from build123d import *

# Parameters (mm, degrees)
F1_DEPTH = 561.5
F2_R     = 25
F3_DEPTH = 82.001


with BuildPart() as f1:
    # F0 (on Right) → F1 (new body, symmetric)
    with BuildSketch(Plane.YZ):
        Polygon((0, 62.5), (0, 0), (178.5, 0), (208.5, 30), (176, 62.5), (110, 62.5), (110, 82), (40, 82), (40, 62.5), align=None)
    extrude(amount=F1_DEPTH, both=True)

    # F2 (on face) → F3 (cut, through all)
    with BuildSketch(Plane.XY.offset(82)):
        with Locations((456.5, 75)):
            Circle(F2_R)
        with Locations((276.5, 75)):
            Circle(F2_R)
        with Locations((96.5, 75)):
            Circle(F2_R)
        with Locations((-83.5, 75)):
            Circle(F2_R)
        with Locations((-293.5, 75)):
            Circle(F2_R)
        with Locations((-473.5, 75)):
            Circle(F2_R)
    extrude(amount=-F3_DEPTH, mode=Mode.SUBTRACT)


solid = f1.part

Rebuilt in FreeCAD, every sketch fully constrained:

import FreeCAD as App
import Part
import Sketcher
Q = App.Units.Quantity

doc = App.newDocument("Part")
params = doc.addObject("Spreadsheet::Sheet", "Params")
for row, (alias, value) in enumerate([
    ("sketch1_width", "66 mm"),
    ("sketch1_width2", "70 mm"),
    ("sketch1_width3", "40 mm"),
    ("sketch1_width4", "178.5 mm"),
    ("sketch1_height", "62.5 mm"),
    ("pad1_length", "1123 mm"),
    ("sketch2_diameter", "50 mm"),
], start=1):
    params.set(f"A{row}", alias)
    params.set(f"B{row}", "=" + value)
    params.setAlias(f"B{row}", alias)

body = doc.addObject("PartDesign::Body", "Body")

# Sketch on YZ plane
sketch1 = doc.addObject("Sketcher::SketchObject", "Sketch")
body.addObject(sketch1)
sketch1.AttachmentSupport = (doc.YZ_Plane, [""])
sketch1.MapMode = "FlatFace"
sketch1.addGeometry([
    Part.LineSegment(App.Vector(0, 62, 0), App.Vector(0, 0, 0)),  # 0
    Part.LineSegment(App.Vector(0, 0, 0), App.Vector(178, 0, 0)),  # 1
    Part.LineSegment(App.Vector(178, 0, 0), App.Vector(208, 30, 0)),  # 2
    Part.LineSegment(App.Vector(208, 30, 0), App.Vector(176, 62, 0)),  # 3
    Part.LineSegment(App.Vector(176, 62, 0), App.Vector(110, 62, 0)),  # 4
    Part.LineSegment(App.Vector(110, 62, 0), App.Vector(110, 82, 0)),  # 5
    Part.LineSegment(App.Vector(110, 82, 0), App.Vector(40, 82, 0)),  # 6
    Part.LineSegment(App.Vector(40, 82, 0), App.Vector(40, 62, 0)),  # 7
    Part.LineSegment(App.Vector(40, 62, 0), App.Vector(0, 62, 0)),  # 8
], False)
sketch1.addConstraint([
    Sketcher.Constraint("Coincident", 0, 2, 1, 1),
    Sketcher.Constraint("Coincident", 1, 2, 2, 1),
    Sketcher.Constraint("Coincident", 2, 2, 3, 1),
    Sketcher.Constraint("Coincident", 3, 2, 4, 1),
    Sketcher.Constraint("Coincident", 4, 2, 5, 1),
    Sketcher.Constraint("Coincident", 5, 2, 6, 1),
    Sketcher.Constraint("Coincident", 6, 2, 7, 1),
    Sketcher.Constraint("Coincident", 7, 2, 8, 1),
    Sketcher.Constraint("Coincident", 8, 2, 0, 1),
    Sketcher.Constraint("Vertical", 0),
    Sketcher.Constraint("Horizontal", 1),
    Sketcher.Constraint("Horizontal", 4),
    Sketcher.Constraint("Vertical", 5),
    Sketcher.Constraint("Horizontal", 6),
    Sketcher.Constraint("Vertical", 7),
    Sketcher.Constraint("Horizontal", 8),
    Sketcher.Constraint("Coincident", 0, 2, -1, 1),
    Sketcher.Constraint("Perpendicular", 2, 3),
    Sketcher.Constraint("Horizontal", 4, 2, 7, 2),
    Sketcher.Constraint("DistanceX", 4, 2, 4, 1, 66.0),
    Sketcher.Constraint("DistanceX", 6, 2, 6, 1, 70.0),
    Sketcher.Constraint("DistanceX", 8, 2, 8, 1, 40.0),
    Sketcher.Constraint("Angle", 2, Q("45 deg")),
    Sketcher.Constraint("DistanceX", 1, 1, 1, 2, 178.5),
    Sketcher.Constraint("DistanceY", 0, 2, 0, 1, 62.5),
    Sketcher.Constraint("DistanceY", 5, 1, 5, 2, 19.5),
])
sketch1.setExpression("Constraints[19]", "Params.sketch1_width")
sketch1.setExpression("Constraints[20]", "Params.sketch1_width2")
sketch1.setExpression("Constraints[21]", "Params.sketch1_width3")
sketch1.setExpression("Constraints[23]", "Params.sketch1_width4")
sketch1.setExpression("Constraints[24]", "Params.sketch1_height")
pad1 = doc.addObject("PartDesign::Pad", "Pad")
body.addObject(pad1)
pad1.Profile = sketch1
pad1.setExpression("Length", "Params.pad1_length")
pad1.Midplane = True

# Sketch on XY plane
sketch2 = doc.addObject("Sketcher::SketchObject", "Sketch001")
body.addObject(sketch2)
sketch2.AttachmentSupport = (doc.XY_Plane, [""])
sketch2.MapMode = "FlatFace"
sketch2.AttachmentOffset = App.Placement(App.Vector(0, 0, 82), App.Rotation())
sketch2.addGeometry([
    Part.Circle(App.Vector(456, 75, 0), App.Vector(0, 0, 1), 25),  # 0
    Part.Circle(App.Vector(276, 75, 0), App.Vector(0, 0, 1), 25),  # 1
    Part.Circle(App.Vector(96, 75, 0), App.Vector(0, 0, 1), 25),  # 2
    Part.Circle(App.Vector(-84, 75, 0), App.Vector(0, 0, 1), 25),  # 3
    Part.Circle(App.Vector(-294, 75, 0), App.Vector(0, 0, 1), 25),  # 4
    Part.Circle(App.Vector(-474, 75, 0), App.Vector(0, 0, 1), 25),  # 5
], False)
sketch2.addConstraint([
    Sketcher.Constraint("Equal", 0, 1),
    Sketcher.Constraint("Equal", 1, 2),
    Sketcher.Constraint("Equal", 2, 3),
    Sketcher.Constraint("Equal", 3, 4),
    Sketcher.Constraint("Equal", 4, 5),
    Sketcher.Constraint("Horizontal", 0, 3, 1, 3),
    Sketcher.Constraint("Horizontal", 1, 3, 2, 3),
    Sketcher.Constraint("Horizontal", 2, 3, 3, 3),
    Sketcher.Constraint("Horizontal", 3, 3, 4, 3),
    Sketcher.Constraint("Horizontal", 4, 3, 5, 3),
    Sketcher.Constraint("Diameter", 0, 50.0),
    Sketcher.Constraint("DistanceY", -1, 1, 0, 3, 75.0),
    Sketcher.Constraint("DistanceX", 1, 3, 0, 3, 180.0),
    Sketcher.Constraint("DistanceX", 2, 3, 1, 3, 180.0),
    Sketcher.Constraint("DistanceX", 3, 3, 2, 3, 180.0),
    Sketcher.Constraint("DistanceX", 4, 3, 3, 3, 210.0),
    Sketcher.Constraint("DistanceX", 5, 3, 4, 3, 180.0),
    Sketcher.Constraint("DistanceX", -1, 1, 0, 3, 456.5),
])
sketch2.setExpression("Constraints[10]", "Params.sketch2_diameter")
pocket1 = doc.addObject("PartDesign::Pocket", "Pocket")
body.addObject(pocket1)
pocket1.Profile = sketch2
pocket1.Type = "ThroughAll"

doc.recompute()
